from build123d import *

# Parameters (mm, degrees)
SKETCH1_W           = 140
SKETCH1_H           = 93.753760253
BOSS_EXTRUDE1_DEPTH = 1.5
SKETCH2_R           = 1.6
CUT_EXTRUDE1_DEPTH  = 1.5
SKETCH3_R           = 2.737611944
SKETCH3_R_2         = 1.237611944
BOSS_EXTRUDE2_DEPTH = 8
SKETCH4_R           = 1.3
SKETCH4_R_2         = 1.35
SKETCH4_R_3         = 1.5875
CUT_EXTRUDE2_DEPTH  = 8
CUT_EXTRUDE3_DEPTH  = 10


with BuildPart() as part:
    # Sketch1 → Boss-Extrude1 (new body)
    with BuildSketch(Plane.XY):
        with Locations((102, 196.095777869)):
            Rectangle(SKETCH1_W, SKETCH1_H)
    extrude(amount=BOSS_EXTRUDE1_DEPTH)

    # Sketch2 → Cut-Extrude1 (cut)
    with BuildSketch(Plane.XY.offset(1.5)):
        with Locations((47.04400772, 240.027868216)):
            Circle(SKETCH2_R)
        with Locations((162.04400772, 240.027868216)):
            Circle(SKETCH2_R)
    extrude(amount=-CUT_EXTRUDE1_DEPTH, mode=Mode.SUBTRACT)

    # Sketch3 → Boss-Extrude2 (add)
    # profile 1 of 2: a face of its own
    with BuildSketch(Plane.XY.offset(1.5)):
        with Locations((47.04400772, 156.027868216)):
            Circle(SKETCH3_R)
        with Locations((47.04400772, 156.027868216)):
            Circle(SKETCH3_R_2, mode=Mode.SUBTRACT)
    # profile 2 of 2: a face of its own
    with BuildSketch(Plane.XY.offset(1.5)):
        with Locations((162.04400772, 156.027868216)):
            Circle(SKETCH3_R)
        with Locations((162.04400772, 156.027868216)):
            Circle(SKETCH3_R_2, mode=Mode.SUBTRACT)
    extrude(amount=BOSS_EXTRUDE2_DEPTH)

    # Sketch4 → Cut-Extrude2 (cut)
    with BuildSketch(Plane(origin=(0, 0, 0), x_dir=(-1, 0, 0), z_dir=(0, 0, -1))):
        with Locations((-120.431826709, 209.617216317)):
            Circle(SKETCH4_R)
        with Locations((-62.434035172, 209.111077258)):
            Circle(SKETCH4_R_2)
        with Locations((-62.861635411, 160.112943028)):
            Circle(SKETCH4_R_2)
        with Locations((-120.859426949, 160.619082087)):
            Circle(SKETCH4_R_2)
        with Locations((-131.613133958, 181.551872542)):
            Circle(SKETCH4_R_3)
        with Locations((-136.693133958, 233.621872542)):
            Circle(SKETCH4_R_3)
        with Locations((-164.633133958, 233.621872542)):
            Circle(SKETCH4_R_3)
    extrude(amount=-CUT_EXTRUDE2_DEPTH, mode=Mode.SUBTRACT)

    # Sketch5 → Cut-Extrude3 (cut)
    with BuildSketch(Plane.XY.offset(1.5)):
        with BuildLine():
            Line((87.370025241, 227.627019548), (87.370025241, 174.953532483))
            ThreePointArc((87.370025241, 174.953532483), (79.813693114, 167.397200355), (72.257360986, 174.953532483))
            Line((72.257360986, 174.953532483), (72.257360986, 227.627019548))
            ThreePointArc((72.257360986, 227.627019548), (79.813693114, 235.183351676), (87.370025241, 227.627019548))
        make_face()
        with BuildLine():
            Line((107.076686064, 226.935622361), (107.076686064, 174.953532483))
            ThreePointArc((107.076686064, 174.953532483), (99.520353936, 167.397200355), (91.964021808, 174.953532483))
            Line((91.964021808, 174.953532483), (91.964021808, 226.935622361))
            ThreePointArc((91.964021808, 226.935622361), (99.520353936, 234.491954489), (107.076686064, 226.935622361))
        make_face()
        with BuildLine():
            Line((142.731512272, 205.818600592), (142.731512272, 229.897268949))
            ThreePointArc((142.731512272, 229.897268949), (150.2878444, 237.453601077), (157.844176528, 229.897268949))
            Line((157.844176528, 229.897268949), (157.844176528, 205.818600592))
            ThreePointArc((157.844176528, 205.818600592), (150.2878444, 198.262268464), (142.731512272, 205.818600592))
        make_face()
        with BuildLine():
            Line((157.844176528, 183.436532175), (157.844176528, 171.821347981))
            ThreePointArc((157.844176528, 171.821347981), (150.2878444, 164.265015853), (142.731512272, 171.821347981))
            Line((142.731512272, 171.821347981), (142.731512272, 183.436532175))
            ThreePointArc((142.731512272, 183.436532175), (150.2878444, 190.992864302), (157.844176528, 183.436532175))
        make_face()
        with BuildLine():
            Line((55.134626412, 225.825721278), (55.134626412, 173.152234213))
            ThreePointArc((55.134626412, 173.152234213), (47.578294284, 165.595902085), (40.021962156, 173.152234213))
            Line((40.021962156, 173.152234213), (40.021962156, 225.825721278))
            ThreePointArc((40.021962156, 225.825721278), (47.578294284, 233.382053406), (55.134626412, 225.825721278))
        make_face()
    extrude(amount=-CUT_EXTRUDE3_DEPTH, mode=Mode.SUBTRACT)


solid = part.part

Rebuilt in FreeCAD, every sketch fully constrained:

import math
import FreeCAD as App
import Part
import Sketcher
from FreeCAD import Vector
Q = App.Units.Quantity


def add_polygon(sketch, points):
    """Adds a closed chain of lines whose ends are joined by coincident constraints."""
    first, n = sketch.GeometryCount, len(points)
    for a, b in zip(points, points[1:] + points[:1]):
        sketch.addGeometry(Part.LineSegment(App.Vector(*a, 0), App.Vector(*b, 0)), False)
    for i in range(n):
        sketch.addConstraint(Sketcher.Constraint("Coincident", first + i, 2, first + (i + 1) % n, 1))

doc = App.newDocument("Part")
body = doc.addObject("PartDesign::Body", "Body")

sketch1 = doc.addObject("Sketcher::SketchObject", "Sketch")
body.addObject(sketch1)
sketch1.AttachmentSupport = (doc.XY_Plane, [""])
sketch1.MapMode = "FlatFace"
add_polygon(sketch1, [(32, 243), (32, 149), (172, 149), (172, 243)])
sketch1.addConstraint(Sketcher.Constraint("Vertical", 0))
sketch1.addConstraint(Sketcher.Constraint("Horizontal", 1))
sketch1.addConstraint(Sketcher.Constraint("Vertical", 2))
sketch1.addConstraint(Sketcher.Constraint("Horizontal", 3))
sketch1.addConstraint(Sketcher.Constraint("DistanceX", 1, 1, 1, 2, Q("140 mm")))
sketch1.addConstraint(Sketcher.Constraint("DistanceX", -1, 1, 0, 2, Q("32 mm")))
sketch1.addConstraint(Sketcher.Constraint("DistanceY", 0, 2, 0, 1, Q("93.75376 mm")))
sketch1.addConstraint(Sketcher.Constraint("DistanceY", -1, 1, 0, 2, Q("149.218898 mm")))
pad1 = doc.addObject("PartDesign::Pad", "Pad")
body.addObject(pad1)
pad1.Profile = sketch1
pad1.Length = 1.5

sketch2 = doc.addObject("Sketcher::SketchObject", "Sketch001")
body.addObject(sketch2)
sketch2.AttachmentSupport = (doc.XY_Plane, [""])
sketch2.MapMode = "FlatFace"
sketch2.AttachmentOffset = App.Placement(Vector(0, 0, 1.5), App.Rotation())
sketch2.addGeometry(Part.Circle(Vector(47, 240, 0), Vector(0, 0, 1), 1.6), False)
sketch2.addGeometry(Part.Circle(Vector(162, 240, 0), Vector(0, 0, 1), 1.6), False)
sketch2.addConstraint(Sketcher.Constraint("Equal", 0, 1))
sketch2.addConstraint(Sketcher.Constraint("Horizontal", 0, 3, 1, 3))
sketch2.addConstraint(Sketcher.Constraint("Diameter", 0, Q("3.2 mm")))
sketch2.addConstraint(Sketcher.Constraint("DistanceX", 0, 3, 1, 3, Q("115 mm")))
sketch2.addConstraint(Sketcher.Constraint("DistanceY", -1, 1, 0, 3, Q("240.027868 mm")))
sketch2.addConstraint(Sketcher.Constraint("DistanceX", -1, 1, 0, 3, Q("47.044008 mm")))
pocket1 = doc.addObject("PartDesign::Pocket", "Pocket")
body.addObject(pocket1)
pocket1.Profile = sketch2
pocket1.Length = 1.5

sketch3 = doc.addObject("Sketcher::SketchObject", "Sketch002")
body.addObject(sketch3)
sketch3.AttachmentSupport = (doc.XY_Plane, [""])
sketch3.MapMode = "FlatFace"
sketch3.AttachmentOffset = App.Placement(Vector(0, 0, 1.5), App.Rotation())
sketch3.addGeometry(Part.Circle(Vector(47, 156, 0), Vector(0, 0, 1), 2.7), False)
sketch3.addGeometry(Part.Circle(Vector(47, 156, 0), Vector(0, 0, 1), 1.2), False)
sketch3.addGeometry(Part.Circle(Vector(162, 156, 0), Vector(0, 0, 1), 2.7), False)
sketch3.addGeometry(Part.Circle(Vector(162, 156, 0), Vector(0, 0, 1), 1.2), False)
sketch3.addConstraint(Sketcher.Constraint("Coincident", 1, 3, 0, 3))
sketch3.addConstraint(Sketcher.Constraint("Coincident", 3, 3, 2, 3))
sketch3.addConstraint(Sketcher.Constraint("Equal", 0, 2))
sketch3.addConstraint(Sketcher.Constraint("Equal", 1, 3))
sketch3.addConstraint(Sketcher.Constraint("Horizontal", 1, 3, 2, 3))
sketch3.addConstraint(Sketcher.Constraint("DistanceX", 0, 3, 2, 3, Q("115 mm")))
sketch3.addConstraint(Sketcher.Constraint("Diameter", 0, Q("5.475224 mm")))
sketch3.addConstraint(Sketcher.Constraint("Diameter", 1, Q("2.475224 mm")))
sketch3.addConstraint(Sketcher.Constraint("DistanceY", -1, 1, 0, 3, Q("156.027868 mm")))
sketch3.addConstraint(Sketcher.Constraint("DistanceX", -1, 1, 0, 3, Q("47.044008 mm")))
pad2 = doc.addObject("PartDesign::Pad", "Pad001")
body.addObject(pad2)
pad2.Profile = sketch3
pad2.Length = 8

sketch4 = doc.addObject("Sketcher::SketchObject", "Sketch003")
body.addObject(sketch4)
sketch4.AttachmentSupport = (doc.XY_Plane, [""])
sketch4.MapMode = "FlatFace"
sketch4.addGeometry(Part.Circle(Vector(120.4, 209.6, 0), Vector(0, 0, 1), 1.3), False)
sketch4.addGeometry(Part.Circle(Vector(62.4, 209.1, 0), Vector(0, 0, 1), 1.4), False)
sketch4.addGeometry(Part.Circle(Vector(62.9, 160.1, 0), Vector(0, 0, 1), 1.4), False)
sketch4.addGeometry(Part.Circle(Vector(120.9, 160.6, 0), Vector(0, 0, 1), 1.4), False)
sketch4.addGeometry(Part.Circle(Vector(131.6, 181.6, 0), Vector(0, 0, 1), 1.6), False)
sketch4.addGeometry(Part.Circle(Vector(136.7, 233.6, 0), Vector(0, 0, 1), 1.6), False)
sketch4.addGeometry(Part.Circle(Vector(164.6, 233.6, 0), Vector(0, 0, 1), 1.6), False)
sketch4.addConstraint(Sketcher.Constraint("Equal", 1, 2))
sketch4.addConstraint(Sketcher.Constraint("Equal", 2, 3))
sketch4.addConstraint(Sketcher.Constraint("Equal", 4, 5))
sketch4.addConstraint(Sketcher.Constraint("Equal", 5, 6))
sketch4.addConstraint(Sketcher.Constraint("Horizontal", 5, 3, 6, 3))
sketch4.addConstraint(Sketcher.Constraint("Diameter", 0, Q("2.6 mm")))
sketch4.addConstraint(Sketcher.Constraint("Diameter", 1, Q("2.7 mm")))
sketch4.addConstraint(Sketcher.Constraint("Diameter", 4, Q("3.175 mm")))
sketch4.addConstraint(Sketcher.Constraint("DistanceX", 4, 3, 5, 3, Q("5.08 mm")))
sketch4.addConstraint(Sketcher.Constraint("DistanceY", 4, 3, 5, 3, Q("52.07 mm")))
sketch4.addConstraint(Sketcher.Constraint("DistanceX", 5, 3, 6, 3, Q("27.94 mm")))
sketch4.addConstraint(Sketcher.Constraint("DistanceX", 1, 3, 2, 3, Q("0.4276 mm")))
sketch4.addConstraint(Sketcher.Constraint("DistanceX", 0, 3, 3, 3, Q("0.4276 mm")))
sketch4.addConstraint(Sketcher.Constraint("DistanceX", 2, 3, 4, 3, Q("68.751499 mm")))
sketch4.addConstraint(Sketcher.Constraint("DistanceX", 1, 3, 0, 3, Q("57.997792 mm")))
sketch4.addConstraint(Sketcher.Constraint("DistanceY", 1, 3, 0, 3, Q("0.506139 mm")))
sketch4.addConstraint(Sketcher.Constraint("DistanceY", 2, 3, 3, 3, Q("0.506139 mm")))
sketch4.addConstraint(Sketcher.Constraint("DistanceY", 3, 3, 4, 3, Q("20.93279 mm")))
sketch4.addConstraint(Sketcher.Constraint("DistanceX", -1, 1, 0, 3, Q("120.431827 mm")))
sketch4.addConstraint(Sketcher.Constraint("DistanceY", -1, 1, 0, 3, Q("209.617216 mm")))
sketch4.addConstraint(Sketcher.Constraint("DistanceY", -1, 1, 2, 3, Q("160.112943 mm")))
pocket2 = doc.addObject("PartDesign::Pocket", "Pocket001")
body.addObject(pocket2)
pocket2.Profile = sketch4
pocket2.Length = 8
pocket2.Reversed = True

sketch5 = doc.addObject("Sketcher::SketchObject", "Sketch004")
body.addObject(sketch5)
sketch5.AttachmentSupport = (doc.XY_Plane, [""])
sketch5.MapMode = "FlatFace"
sketch5.AttachmentOffset = App.Placement(Vector(0, 0, 1.5), App.Rotation())
sketch5.addGeometry(Part.LineSegment(Vector(87, 175, 0), Vector(87, 228, 0)), False)
sketch5.addGeometry(Part.ArcOfCircle(Part.Circle(Vector(80, 228, 0), Vector(0, 0, 1), 8), math.radians(0), math.radians(180)), False)
sketch5.addGeometry(Part.LineSegment(Vector(72, 228, 0), Vector(72, 175, 0)), False)
sketch5.addGeometry(Part.ArcOfCircle(Part.Circle(Vector(80, 175, 0), Vector(0, 0, 1), 8), math.radians(180), math.radians(360)), False)
sketch5.addGeometry(Part.LineSegment(Vector(107, 175, 0), Vector(107, 227, 0)), False)
sketch5.addGeometry(Part.ArcOfCircle(Part.Circle(Vector(100, 227, 0), Vector(0, 0, 1), 8), math.radians(0), math.radians(180)), False)
sketch5.addGeometry(Part.LineSegment(Vector(92, 227, 0), Vector(92, 175, 0)), False)
sketch5.addGeometry(Part.ArcOfCircle(Part.Circle(Vector(100, 175, 0), Vector(0, 0, 1), 8), math.radians(180), math.radians(360)), False)
sketch5.addGeometry(Part.LineSegment(Vector(143, 230, 0), Vector(143, 206, 0)), False)
sketch5.addGeometry(Part.ArcOfCircle(Part.Circle(Vector(150, 206, 0), Vector(0, 0, 1), 8), math.radians(180), math.radians(360)), False)
sketch5.addGeometry(Part.LineSegment(Vector(158, 206, 0), Vector(158, 230, 0)), False)
sketch5.addGeometry(Part.ArcOfCircle(Part.Circle(Vector(150, 230, 0), Vector(0, 0, 1), 8), math.radians(0), math.radians(180)), False)
sketch5.addGeometry(Part.LineSegment(Vector(158, 172, 0), Vector(158, 183, 0)), False)
sketch5.addGeometry(Part.ArcOfCircle(Part.Circle(Vector(150, 183, 0), Vector(0, 0, 1), 8), math.radians(0), math.radians(180)), False)
sketch5.addGeometry(Part.LineSegment(Vector(143, 183, 0), Vector(143, 172, 0)), False)
sketch5.addGeometry(Part.ArcOfCircle(Part.Circle(Vector(150, 172, 0), Vector(0, 0, 1), 8), math.radians(180), math.radians(360)), False)
sketch5.addGeometry(Part.LineSegment(Vector(55, 173, 0), Vector(55, 226, 0)), False)
sketch5.addGeometry(Part.ArcOfCircle(Part.Circle(Vector(48, 226, 0), Vector(0, 0, 1), 8), math.radians(0), math.radians(180)), False)
sketch5.addGeometry(Part.LineSegment(Vector(40, 226, 0), Vector(40, 173, 0)), False)
sketch5.addGeometry(Part.ArcOfCircle(Part.Circle(Vector(48, 173, 0), Vector(0, 0, 1), 8), math.radians(180), math.radians(360)), False)
sketch5.addConstraint(Sketcher.Constraint("Tangent", 0, 2, 1, 1))
sketch5.addConstraint(Sketcher.Constraint("Tangent", 1, 2, 2, 1))
sketch5.addConstraint(Sketcher.Constraint("Tangent", 2, 2, 3, 1))
sketch5.addConstraint(Sketcher.Constraint("Tangent", 3, 2, 0, 1))
sketch5.addConstraint(Sketcher.Constraint("Tangent", 4, 2, 5, 1))
sketch5.addConstraint(Sketcher.Constraint("Tangent", 5, 2, 6, 1))
sketch5.addConstraint(Sketcher.Constraint("Tangent", 6, 2, 7, 1))
sketch5.addConstraint(Sketcher.Constraint("Tangent", 7, 2, 4, 1))
sketch5.addConstraint(Sketcher.Constraint("Tangent", 8, 2, 9, 1))
sketch5.addConstraint(Sketcher.Constraint("Tangent", 9, 2, 10, 1))
sketch5.addConstraint(Sketcher.Constraint("Tangent", 10, 2, 11, 1))
sketch5.addConstraint(Sketcher.Constraint("Tangent", 11, 2, 8, 1))
sketch5.addConstraint(Sketcher.Constraint("Tangent", 12, 2, 13, 1))
sketch5.addConstraint(Sketcher.Constraint("Tangent", 13, 2, 14, 1))
sketch5.addConstraint(Sketcher.Constraint("Tangent", 14, 2, 15, 1))
sketch5.addConstraint(Sketcher.Constraint("Tangent", 15, 2, 12, 1))
sketch5.addConstraint(Sketcher.Constraint("Tangent", 16, 2, 17, 1))
sketch5.addConstraint(Sketcher.Constraint("Tangent", 17, 2, 18, 1))
sketch5.addConstraint(Sketcher.Constraint("Tangent", 18, 2, 19, 1))
sketch5.addConstraint(Sketcher.Constraint("Tangent", 19, 2, 16, 1))
sketch5.addConstraint(Sketcher.Constraint("Vertical", 0))
sketch5.addConstraint(Sketcher.Constraint("Vertical", 2))
sketch5.addConstraint(Sketcher.Constraint("Vertical", 4))
sketch5.addConstraint(Sketcher.Constraint("Vertical", 6))
sketch5.addConstraint(Sketcher.Constraint("Vertical", 8))
sketch5.addConstraint(Sketcher.Constraint("Vertical", 10))
sketch5.addConstraint(Sketcher.Constraint("Vertical", 12))
sketch5.addConstraint(Sketcher.Constraint("Vertical", 14))
sketch5.addConstraint(Sketcher.Constraint("Vertical", 16))
sketch5.addConstraint(Sketcher.Constraint("Vertical", 18))
sketch5.addConstraint(Sketcher.Constraint("Equal", 3, 5))
sketch5.addConstraint(Sketcher.Constraint("Equal", 7, 9))
sketch5.addConstraint(Sketcher.Constraint("Equal", 11, 13))
sketch5.addConstraint(Sketcher.Constraint("Equal", 15, 17))
sketch5.addConstraint(Sketcher.Constraint("Horizontal", 3, 3, 7, 3))
sketch5.addConstraint(Sketcher.Constraint("Vertical", 11, 3, 13, 3))
sketch5.addConstraint(Sketcher.Constraint("Equal", 2, 16))
sketch5.addConstraint(Sketcher.Constraint("Radius", 1, Q("7.556332 mm")))
sketch5.addConstraint(Sketcher.Constraint("DistanceY", 7, 3, 13, 3, Q("8.483 mm")))
sketch5.addConstraint(Sketcher.Constraint("DistanceY", 4, 1, 4, 2, Q("51.98209 mm")))
sketch5.addConstraint(Sketcher.Constraint("DistanceY", 8, 2, 8, 1, Q("24.078668 mm")))
sketch5.addConstraint(Sketcher.Constraint("DistanceY", -1, 1, 9, 3, Q("205.818601 mm")))
sketch5.addConstraint(Sketcher.Constraint("DistanceX", 17, 3, 1, 3, Q("32.235399 mm")))
sketch5.addConstraint(Sketcher.Constraint("DistanceY", 17, 3, 1, 3, Q("1.801298 mm")))
sketch5.addConstraint(Sketcher.Constraint("DistanceY", 17, 3, 5, 3, Q("1.109901 mm")))
sketch5.addConstraint(Sketcher.Constraint("DistanceY", 12, 1, 12, 2, Q("11.615184 mm")))
sketch5.addConstraint(Sketcher.Constraint("DistanceY", -1, 1, 1, 3, Q("227.62702 mm")))
sketch5.addConstraint(Sketcher.Constraint("DistanceX", -1, 1, 1, 2, Q("72.257361 mm")))
sketch5.addConstraint(Sketcher.Constraint("DistanceX", -1, 1, 5, 2, Q("91.964022 mm")))
sketch5.addConstraint(Sketcher.Constraint("DistanceX", 5, 3, 9, 3, Q("50.76749 mm")))
pocket3 = doc.addObject("PartDesign::Pocket", "Pocket002")
body.addObject(pocket3)
pocket3.Profile = sketch5
pocket3.Length = 10

doc.recompute()
